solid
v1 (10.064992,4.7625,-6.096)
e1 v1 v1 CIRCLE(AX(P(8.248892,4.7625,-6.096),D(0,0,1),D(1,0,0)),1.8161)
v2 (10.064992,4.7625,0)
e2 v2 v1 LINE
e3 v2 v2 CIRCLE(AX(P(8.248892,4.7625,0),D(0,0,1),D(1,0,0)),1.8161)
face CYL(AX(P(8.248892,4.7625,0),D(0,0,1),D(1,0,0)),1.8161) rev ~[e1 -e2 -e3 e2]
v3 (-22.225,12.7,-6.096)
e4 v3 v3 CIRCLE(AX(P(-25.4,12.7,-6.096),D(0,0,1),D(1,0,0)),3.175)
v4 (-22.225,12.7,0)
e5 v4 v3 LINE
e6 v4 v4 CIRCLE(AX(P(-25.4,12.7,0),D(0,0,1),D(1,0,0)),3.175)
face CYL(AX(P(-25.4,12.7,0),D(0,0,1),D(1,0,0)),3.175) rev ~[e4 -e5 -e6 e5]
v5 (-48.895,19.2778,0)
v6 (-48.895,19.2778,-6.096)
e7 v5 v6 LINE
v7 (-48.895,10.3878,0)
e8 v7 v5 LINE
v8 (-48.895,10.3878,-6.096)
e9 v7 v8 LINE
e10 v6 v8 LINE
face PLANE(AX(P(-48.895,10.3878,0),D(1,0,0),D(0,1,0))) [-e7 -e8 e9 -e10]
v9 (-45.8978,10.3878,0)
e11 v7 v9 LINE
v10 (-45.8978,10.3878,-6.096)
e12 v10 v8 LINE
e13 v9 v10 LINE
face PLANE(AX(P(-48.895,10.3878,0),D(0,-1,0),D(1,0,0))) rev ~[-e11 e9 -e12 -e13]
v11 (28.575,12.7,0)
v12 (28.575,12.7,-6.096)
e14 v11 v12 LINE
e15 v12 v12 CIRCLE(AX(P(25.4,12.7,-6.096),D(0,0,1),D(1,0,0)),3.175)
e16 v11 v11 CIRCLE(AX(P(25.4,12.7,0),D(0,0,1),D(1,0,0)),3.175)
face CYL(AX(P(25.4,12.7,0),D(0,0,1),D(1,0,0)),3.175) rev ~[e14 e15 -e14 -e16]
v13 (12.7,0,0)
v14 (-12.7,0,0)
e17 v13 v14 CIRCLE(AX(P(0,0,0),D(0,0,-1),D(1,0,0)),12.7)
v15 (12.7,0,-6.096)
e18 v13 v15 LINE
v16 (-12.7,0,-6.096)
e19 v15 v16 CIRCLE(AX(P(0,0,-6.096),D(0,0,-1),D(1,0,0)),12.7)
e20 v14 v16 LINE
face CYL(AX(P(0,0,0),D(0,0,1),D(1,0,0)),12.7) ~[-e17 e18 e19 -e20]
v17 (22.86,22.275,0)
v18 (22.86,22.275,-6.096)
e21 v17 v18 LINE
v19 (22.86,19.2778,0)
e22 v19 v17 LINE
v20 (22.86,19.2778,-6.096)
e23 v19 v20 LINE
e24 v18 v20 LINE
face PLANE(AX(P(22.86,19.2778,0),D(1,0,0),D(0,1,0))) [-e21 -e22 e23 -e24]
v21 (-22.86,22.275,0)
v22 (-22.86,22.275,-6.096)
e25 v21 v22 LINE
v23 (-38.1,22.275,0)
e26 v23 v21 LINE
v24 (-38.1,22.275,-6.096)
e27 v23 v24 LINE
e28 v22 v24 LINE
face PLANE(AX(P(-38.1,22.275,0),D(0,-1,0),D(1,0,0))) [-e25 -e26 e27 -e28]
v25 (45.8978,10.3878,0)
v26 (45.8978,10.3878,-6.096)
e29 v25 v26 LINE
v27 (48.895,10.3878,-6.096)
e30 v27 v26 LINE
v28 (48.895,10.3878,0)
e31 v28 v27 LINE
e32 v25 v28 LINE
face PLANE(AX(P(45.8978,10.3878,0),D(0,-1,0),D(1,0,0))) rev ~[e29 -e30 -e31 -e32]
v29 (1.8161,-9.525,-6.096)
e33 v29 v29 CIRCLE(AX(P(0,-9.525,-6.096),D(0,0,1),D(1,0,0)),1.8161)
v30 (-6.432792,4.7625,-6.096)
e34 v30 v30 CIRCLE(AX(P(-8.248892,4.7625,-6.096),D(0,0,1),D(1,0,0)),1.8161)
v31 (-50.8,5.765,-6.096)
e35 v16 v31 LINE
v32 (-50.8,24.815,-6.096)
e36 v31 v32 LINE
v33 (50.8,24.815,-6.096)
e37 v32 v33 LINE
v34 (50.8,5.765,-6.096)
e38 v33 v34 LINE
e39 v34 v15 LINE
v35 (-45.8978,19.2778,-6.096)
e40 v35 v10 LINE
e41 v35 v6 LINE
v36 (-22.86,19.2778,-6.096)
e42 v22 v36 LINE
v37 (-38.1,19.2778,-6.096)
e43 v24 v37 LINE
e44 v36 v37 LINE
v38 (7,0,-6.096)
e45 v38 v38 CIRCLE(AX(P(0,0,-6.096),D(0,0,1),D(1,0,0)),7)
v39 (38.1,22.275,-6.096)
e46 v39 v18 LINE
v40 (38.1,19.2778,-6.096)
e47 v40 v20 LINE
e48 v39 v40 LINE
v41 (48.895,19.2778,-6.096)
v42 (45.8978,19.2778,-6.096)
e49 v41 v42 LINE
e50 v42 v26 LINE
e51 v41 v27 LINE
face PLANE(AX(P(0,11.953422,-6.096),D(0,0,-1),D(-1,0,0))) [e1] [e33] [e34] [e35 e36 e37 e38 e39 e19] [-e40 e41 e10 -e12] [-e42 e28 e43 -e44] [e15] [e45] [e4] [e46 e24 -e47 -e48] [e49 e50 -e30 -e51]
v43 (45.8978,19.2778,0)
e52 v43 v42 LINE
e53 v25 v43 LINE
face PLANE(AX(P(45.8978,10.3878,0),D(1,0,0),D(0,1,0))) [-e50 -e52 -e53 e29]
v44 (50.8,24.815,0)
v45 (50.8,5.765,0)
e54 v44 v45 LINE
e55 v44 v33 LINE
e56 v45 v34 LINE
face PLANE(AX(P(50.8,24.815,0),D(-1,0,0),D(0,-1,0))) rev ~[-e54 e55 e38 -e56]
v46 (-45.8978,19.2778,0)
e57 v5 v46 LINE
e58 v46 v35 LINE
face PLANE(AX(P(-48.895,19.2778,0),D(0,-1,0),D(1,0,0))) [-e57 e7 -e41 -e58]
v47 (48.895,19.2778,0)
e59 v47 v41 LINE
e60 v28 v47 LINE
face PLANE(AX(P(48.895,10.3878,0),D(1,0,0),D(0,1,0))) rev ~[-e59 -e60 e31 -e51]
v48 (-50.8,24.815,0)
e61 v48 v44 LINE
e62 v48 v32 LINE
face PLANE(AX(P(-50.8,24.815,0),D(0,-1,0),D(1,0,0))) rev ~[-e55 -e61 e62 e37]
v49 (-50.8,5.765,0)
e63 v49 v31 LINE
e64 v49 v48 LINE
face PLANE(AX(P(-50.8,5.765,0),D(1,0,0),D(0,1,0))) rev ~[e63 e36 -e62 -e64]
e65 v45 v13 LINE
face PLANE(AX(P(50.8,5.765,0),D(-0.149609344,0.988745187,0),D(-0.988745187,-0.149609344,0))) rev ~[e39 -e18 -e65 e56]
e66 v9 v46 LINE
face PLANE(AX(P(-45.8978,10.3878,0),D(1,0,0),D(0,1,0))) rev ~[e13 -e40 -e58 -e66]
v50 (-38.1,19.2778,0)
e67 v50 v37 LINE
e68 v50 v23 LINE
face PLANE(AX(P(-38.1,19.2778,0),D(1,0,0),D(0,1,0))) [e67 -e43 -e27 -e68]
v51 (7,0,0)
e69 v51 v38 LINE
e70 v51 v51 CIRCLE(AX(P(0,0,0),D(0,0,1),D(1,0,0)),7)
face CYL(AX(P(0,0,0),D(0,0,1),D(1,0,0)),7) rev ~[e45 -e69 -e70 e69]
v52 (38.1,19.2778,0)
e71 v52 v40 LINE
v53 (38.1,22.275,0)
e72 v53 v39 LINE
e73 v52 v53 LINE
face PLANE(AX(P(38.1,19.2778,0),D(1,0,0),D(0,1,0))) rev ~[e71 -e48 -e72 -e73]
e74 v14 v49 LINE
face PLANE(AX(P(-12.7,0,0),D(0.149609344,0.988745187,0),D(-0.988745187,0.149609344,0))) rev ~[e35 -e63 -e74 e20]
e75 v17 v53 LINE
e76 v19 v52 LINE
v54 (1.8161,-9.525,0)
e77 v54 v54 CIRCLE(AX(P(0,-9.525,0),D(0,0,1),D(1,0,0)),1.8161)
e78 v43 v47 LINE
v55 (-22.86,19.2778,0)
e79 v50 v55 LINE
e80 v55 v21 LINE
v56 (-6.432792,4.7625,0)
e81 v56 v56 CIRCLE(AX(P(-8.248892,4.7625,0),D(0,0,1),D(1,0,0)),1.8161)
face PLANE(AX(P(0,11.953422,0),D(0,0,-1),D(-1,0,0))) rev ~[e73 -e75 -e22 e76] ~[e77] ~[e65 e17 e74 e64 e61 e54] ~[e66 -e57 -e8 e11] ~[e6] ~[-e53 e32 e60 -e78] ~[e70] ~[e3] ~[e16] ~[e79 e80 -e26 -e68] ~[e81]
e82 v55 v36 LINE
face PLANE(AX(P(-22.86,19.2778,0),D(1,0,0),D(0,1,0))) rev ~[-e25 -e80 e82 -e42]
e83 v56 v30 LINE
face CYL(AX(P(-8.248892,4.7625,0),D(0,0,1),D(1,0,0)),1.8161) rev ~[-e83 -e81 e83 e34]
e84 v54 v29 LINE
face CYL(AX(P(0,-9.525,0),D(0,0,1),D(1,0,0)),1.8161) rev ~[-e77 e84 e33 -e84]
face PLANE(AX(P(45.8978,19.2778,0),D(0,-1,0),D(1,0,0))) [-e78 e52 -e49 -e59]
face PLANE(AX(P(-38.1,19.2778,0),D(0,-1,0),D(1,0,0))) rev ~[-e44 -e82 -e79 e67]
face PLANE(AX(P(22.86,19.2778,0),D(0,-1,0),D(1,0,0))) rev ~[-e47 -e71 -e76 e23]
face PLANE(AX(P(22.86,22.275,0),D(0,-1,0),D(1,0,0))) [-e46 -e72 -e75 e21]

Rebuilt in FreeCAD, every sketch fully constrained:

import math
import FreeCAD as App
import Part
import Sketcher
Q = App.Units.Quantity


def add_polygon(sketch, points):
    """Adds a closed chain of lines whose ends are joined by coincident constraints."""
    first, n = sketch.GeometryCount, len(points)
    for a, b in zip(points, points[1:] + points[:1]):
        sketch.addGeometry(Part.LineSegment(App.Vector(*a, 0), App.Vector(*b, 0)), False)
    for i in range(n):
        sketch.addConstraint(Sketcher.Constraint("Coincident", first + i, 2, first + (i + 1) % n, 1))

doc = App.newDocument("Part")
body = doc.addObject("PartDesign::Body", "Body")

# Sketch on XY plane
sketch1 = body.newObject("Sketcher::SketchObject", "Sketch")
sketch1.AttachmentSupport = (doc.getObject("XY_Plane"), [""])
sketch1.MapMode = "FlatFace"
sketch1.addGeometry(Part.LineSegment(App.Vector(50.8, 24.8, 0), App.Vector(-50.8, 24.8, 0)), False)
sketch1.addGeometry(Part.LineSegment(App.Vector(-50.8, 24.8, 0), App.Vector(-50.8, 5.8, 0)), False)
sketch1.addGeometry(Part.LineSegment(App.Vector(-50.8, 5.8, 0), App.Vector(-12.7, 0, 0)), False)
sketch1.addGeometry(Part.ArcOfCircle(Part.Circle(App.Vector(0, 0, 0), App.Vector(0, 0, 1), 12.7), math.radians(180), math.radians(360)), False)
sketch1.addGeometry(Part.LineSegment(App.Vector(12.7, 0, 0), App.Vector(50.8, 5.8, 0)), False)
sketch1.addGeometry(Part.LineSegment(App.Vector(50.8, 5.8, 0), App.Vector(50.8, 24.8, 0)), False)
sketch1.addGeometry(Part.Circle(App.Vector(0, -9.5, 0), App.Vector(0, 0, 1), 1.8), False)
sketch1.addGeometry(Part.Circle(App.Vector(0, 0, 0), App.Vector(0, 0, 1), 7), False)
sketch1.addGeometry(Part.Circle(App.Vector(8.2, 4.8, 0), App.Vector(0, 0, 1), 1.8), False)
sketch1.addGeometry(Part.Circle(App.Vector(25.4, 12.7, 0), App.Vector(0, 0, 1), 3.2), False)
sketch1.addGeometry(Part.Circle(App.Vector(-8.2, 4.8, 0), App.Vector(0, 0, 1), 1.8), False)
sketch1.addGeometry(Part.Circle(App.Vector(-25.4, 12.7, 0), App.Vector(0, 0, 1), 3.2), False)
sketch1.addConstraint(Sketcher.Constraint("Coincident", 0, 2, 1, 1))
sketch1.addConstraint(Sketcher.Constraint("Coincident", 1, 2, 2, 1))
sketch1.addConstraint(Sketcher.Constraint("Coincident", 2, 2, 3, 1))
sketch1.addConstraint(Sketcher.Constraint("Coincident", 3, 2, 4, 1))
sketch1.addConstraint(Sketcher.Constraint("Coincident", 4, 2, 5, 1))
sketch1.addConstraint(Sketcher.Constraint("Coincident", 5, 2, 0, 1))
sketch1.addConstraint(Sketcher.Constraint("Horizontal", 0))
sketch1.addConstraint(Sketcher.Constraint("Vertical", 1))
sketch1.addConstraint(Sketcher.Constraint("Vertical", 5))
sketch1.addConstraint(Sketcher.Constraint("Coincident", 3, 3, -1, 1))
sketch1.addConstraint(Sketcher.Constraint("Coincident", 7, 3, -1, 1))
sketch1.addConstraint(Sketcher.Constraint("Equal", 6, 8))
sketch1.addConstraint(Sketcher.Constraint("Equal", 8, 10))
sketch1.addConstraint(Sketcher.Constraint("Equal", 9, 11))
sketch1.addConstraint(Sketcher.Constraint("Symmetric", 8, 3, 10, 3, -2))
sketch1.addConstraint(Sketcher.Constraint("Symmetric", 9, 3, 11, 3, -2))
sketch1.addConstraint(Sketcher.Constraint("Symmetric", 1, 2, 4, 2, -2))
sketch1.addConstraint(Sketcher.Constraint("PointOnObject", 6, 3, -2))
sketch1.addConstraint(Sketcher.Constraint("PointOnObject", 2, 2, -1))
sketch1.addConstraint(Sketcher.Constraint("PointOnObject", 3, 2, -1))
sketch1.addConstraint(Sketcher.Constraint("Radius", 3, Q("0.5 in")))
sketch1.addConstraint(Sketcher.Constraint("Diameter", 9, Q("0.25 in")))
sketch1.addConstraint(Sketcher.Constraint("DistanceX", 0, 2, 0, 1, Q("4 in")))
sketch1.addConstraint(Sketcher.Constraint("Diameter", 6, Q("0.143 in")))
sketch1.addConstraint(Sketcher.Constraint("DistanceX", -1, 1, 9, 3, Q("1 in")))
sketch1.addConstraint(Sketcher.Constraint("DistanceY", 1, 2, 1, 1, Q("0.75 in")))
sketch1.addConstraint(Sketcher.Constraint("DistanceY", -1, 1, 9, 3, Q("0.5 in")))
sketch1.addConstraint(Sketcher.Constraint("Diameter", 7, 14.0))
sketch1.addConstraint(Sketcher.Constraint("DistanceY", 6, 3, -1, 1, Q("0.375 in")))
sketch1.addConstraint(Sketcher.Constraint("DistanceY", -1, 1, 8, 3, Q("0.1875 in")))
sketch1.addConstraint(Sketcher.Constraint("DistanceY", -1, 1, 0, 2, 24.815))
sketch1.addConstraint(Sketcher.Constraint("DistanceX", -1, 1, 8, 3, 8.248892))
pad1 = body.newObject("PartDesign::Pad", "Pad")
pad1.Profile = sketch1
pad1.Length = Q("0.24 in")
pad1.Reversed = True

# Sketch on XY plane
sketch2 = body.newObject("Sketcher::SketchObject", "Sketch001")
sketch2.AttachmentSupport = (doc.getObject("XY_Plane"), [""])
sketch2.MapMode = "FlatFace"
add_polygon(sketch2, [(-38.1, 22.3), (-38.1, 19.3), (-22.9, 19.3), (-22.9, 22.3)])  # lines 0-3
add_polygon(sketch2, [(22.9, 22.3), (22.9, 19.3), (38.1, 19.3), (38.1, 22.3)])  # lines 4-7
sketch2.addConstraint(Sketcher.Constraint("Vertical", 0))
sketch2.addConstraint(Sketcher.Constraint("Horizontal", 1))
sketch2.addConstraint(Sketcher.Constraint("Vertical", 2))
sketch2.addConstraint(Sketcher.Constraint("Horizontal", 3))
sketch2.addConstraint(Sketcher.Constraint("Vertical", 4))
sketch2.addConstraint(Sketcher.Constraint("Horizontal", 5))
sketch2.addConstraint(Sketcher.Constraint("Vertical", 6))
sketch2.addConstraint(Sketcher.Constraint("Horizontal", 7))
sketch2.addConstraint(Sketcher.Constraint("Symmetric", 1, 2, 4, 2, -2))
sketch2.addConstraint(Sketcher.Constraint("Symmetric", 3, 2, 6, 2, -2))
sketch2.addConstraint(Sketcher.Constraint("DistanceX", 1, 1, 1, 2, Q("0.6 in")))
sketch2.addConstraint(Sketcher.Constraint("DistanceX", 0, 2, 5, 2, Q("3 in")))
sketch2.addConstraint(Sketcher.Constraint("DistanceY", 0, 2, 0, 1, Q("0.118 in")))
sketch2.addConstraint(Sketcher.Constraint("DistanceY", -1, 1, 0, 2, 19.2778))
pocket1 = body.newObject("PartDesign::Pocket", "Pocket")
pocket1.Profile = sketch2
pocket1.Type = "ThroughAll"

# Sketch on XY plane
sketch3 = body.newObject("Sketcher::SketchObject", "Sketch002")
sketch3.AttachmentSupport = (doc.getObject("XY_Plane"), [""])
sketch3.MapMode = "FlatFace"
add_polygon(sketch3, [(-48.9, 19.3), (-48.9, 10.4), (-45.9, 10.4), (-45.9, 19.3)])  # lines 0-3
add_polygon(sketch3, [(45.9, 19.3), (45.9, 10.4), (48.9, 10.4), (48.9, 19.3)])  # lines 4-7
sketch3.addConstraint(Sketcher.Constraint("Vertical", 0))
sketch3.addConstraint(Sketcher.Constraint("Horizontal", 1))
sketch3.addConstraint(Sketcher.Constraint("Vertical", 2))
sketch3.addConstraint(Sketcher.Constraint("Horizontal", 3))
sketch3.addConstraint(Sketcher.Constraint("Vertical", 4))
sketch3.addConstraint(Sketcher.Constraint("Horizontal", 5))
sketch3.addConstraint(Sketcher.Constraint("Vertical", 6))
sketch3.addConstraint(Sketcher.Constraint("Horizontal", 7))
sketch3.addConstraint(Sketcher.Constraint("Symmetric", 1, 2, 4, 2, -2))
sketch3.addConstraint(Sketcher.Constraint("Symmetric", 3, 2, 6, 2, -2))
sketch3.addConstraint(Sketcher.Constraint("DistanceY", 0, 2, 0, 1, Q("0.35 in")))
sketch3.addConstraint(Sketcher.Constraint("DistanceX", 1, 1, 1, 2, Q("0.118 in")))
sketch3.addConstraint(Sketcher.Constraint("DistanceX", 0, 2, 5, 2, Q("3.85 in")))
sketch3.addConstraint(Sketcher.Constraint("DistanceY", -1, 1, 0, 2, 10.3878))
pocket2 = body.newObject("PartDesign::Pocket", "Pocket001")
pocket2.Profile = sketch3
pocket2.Type = "ThroughAll"

doc.recompute()
